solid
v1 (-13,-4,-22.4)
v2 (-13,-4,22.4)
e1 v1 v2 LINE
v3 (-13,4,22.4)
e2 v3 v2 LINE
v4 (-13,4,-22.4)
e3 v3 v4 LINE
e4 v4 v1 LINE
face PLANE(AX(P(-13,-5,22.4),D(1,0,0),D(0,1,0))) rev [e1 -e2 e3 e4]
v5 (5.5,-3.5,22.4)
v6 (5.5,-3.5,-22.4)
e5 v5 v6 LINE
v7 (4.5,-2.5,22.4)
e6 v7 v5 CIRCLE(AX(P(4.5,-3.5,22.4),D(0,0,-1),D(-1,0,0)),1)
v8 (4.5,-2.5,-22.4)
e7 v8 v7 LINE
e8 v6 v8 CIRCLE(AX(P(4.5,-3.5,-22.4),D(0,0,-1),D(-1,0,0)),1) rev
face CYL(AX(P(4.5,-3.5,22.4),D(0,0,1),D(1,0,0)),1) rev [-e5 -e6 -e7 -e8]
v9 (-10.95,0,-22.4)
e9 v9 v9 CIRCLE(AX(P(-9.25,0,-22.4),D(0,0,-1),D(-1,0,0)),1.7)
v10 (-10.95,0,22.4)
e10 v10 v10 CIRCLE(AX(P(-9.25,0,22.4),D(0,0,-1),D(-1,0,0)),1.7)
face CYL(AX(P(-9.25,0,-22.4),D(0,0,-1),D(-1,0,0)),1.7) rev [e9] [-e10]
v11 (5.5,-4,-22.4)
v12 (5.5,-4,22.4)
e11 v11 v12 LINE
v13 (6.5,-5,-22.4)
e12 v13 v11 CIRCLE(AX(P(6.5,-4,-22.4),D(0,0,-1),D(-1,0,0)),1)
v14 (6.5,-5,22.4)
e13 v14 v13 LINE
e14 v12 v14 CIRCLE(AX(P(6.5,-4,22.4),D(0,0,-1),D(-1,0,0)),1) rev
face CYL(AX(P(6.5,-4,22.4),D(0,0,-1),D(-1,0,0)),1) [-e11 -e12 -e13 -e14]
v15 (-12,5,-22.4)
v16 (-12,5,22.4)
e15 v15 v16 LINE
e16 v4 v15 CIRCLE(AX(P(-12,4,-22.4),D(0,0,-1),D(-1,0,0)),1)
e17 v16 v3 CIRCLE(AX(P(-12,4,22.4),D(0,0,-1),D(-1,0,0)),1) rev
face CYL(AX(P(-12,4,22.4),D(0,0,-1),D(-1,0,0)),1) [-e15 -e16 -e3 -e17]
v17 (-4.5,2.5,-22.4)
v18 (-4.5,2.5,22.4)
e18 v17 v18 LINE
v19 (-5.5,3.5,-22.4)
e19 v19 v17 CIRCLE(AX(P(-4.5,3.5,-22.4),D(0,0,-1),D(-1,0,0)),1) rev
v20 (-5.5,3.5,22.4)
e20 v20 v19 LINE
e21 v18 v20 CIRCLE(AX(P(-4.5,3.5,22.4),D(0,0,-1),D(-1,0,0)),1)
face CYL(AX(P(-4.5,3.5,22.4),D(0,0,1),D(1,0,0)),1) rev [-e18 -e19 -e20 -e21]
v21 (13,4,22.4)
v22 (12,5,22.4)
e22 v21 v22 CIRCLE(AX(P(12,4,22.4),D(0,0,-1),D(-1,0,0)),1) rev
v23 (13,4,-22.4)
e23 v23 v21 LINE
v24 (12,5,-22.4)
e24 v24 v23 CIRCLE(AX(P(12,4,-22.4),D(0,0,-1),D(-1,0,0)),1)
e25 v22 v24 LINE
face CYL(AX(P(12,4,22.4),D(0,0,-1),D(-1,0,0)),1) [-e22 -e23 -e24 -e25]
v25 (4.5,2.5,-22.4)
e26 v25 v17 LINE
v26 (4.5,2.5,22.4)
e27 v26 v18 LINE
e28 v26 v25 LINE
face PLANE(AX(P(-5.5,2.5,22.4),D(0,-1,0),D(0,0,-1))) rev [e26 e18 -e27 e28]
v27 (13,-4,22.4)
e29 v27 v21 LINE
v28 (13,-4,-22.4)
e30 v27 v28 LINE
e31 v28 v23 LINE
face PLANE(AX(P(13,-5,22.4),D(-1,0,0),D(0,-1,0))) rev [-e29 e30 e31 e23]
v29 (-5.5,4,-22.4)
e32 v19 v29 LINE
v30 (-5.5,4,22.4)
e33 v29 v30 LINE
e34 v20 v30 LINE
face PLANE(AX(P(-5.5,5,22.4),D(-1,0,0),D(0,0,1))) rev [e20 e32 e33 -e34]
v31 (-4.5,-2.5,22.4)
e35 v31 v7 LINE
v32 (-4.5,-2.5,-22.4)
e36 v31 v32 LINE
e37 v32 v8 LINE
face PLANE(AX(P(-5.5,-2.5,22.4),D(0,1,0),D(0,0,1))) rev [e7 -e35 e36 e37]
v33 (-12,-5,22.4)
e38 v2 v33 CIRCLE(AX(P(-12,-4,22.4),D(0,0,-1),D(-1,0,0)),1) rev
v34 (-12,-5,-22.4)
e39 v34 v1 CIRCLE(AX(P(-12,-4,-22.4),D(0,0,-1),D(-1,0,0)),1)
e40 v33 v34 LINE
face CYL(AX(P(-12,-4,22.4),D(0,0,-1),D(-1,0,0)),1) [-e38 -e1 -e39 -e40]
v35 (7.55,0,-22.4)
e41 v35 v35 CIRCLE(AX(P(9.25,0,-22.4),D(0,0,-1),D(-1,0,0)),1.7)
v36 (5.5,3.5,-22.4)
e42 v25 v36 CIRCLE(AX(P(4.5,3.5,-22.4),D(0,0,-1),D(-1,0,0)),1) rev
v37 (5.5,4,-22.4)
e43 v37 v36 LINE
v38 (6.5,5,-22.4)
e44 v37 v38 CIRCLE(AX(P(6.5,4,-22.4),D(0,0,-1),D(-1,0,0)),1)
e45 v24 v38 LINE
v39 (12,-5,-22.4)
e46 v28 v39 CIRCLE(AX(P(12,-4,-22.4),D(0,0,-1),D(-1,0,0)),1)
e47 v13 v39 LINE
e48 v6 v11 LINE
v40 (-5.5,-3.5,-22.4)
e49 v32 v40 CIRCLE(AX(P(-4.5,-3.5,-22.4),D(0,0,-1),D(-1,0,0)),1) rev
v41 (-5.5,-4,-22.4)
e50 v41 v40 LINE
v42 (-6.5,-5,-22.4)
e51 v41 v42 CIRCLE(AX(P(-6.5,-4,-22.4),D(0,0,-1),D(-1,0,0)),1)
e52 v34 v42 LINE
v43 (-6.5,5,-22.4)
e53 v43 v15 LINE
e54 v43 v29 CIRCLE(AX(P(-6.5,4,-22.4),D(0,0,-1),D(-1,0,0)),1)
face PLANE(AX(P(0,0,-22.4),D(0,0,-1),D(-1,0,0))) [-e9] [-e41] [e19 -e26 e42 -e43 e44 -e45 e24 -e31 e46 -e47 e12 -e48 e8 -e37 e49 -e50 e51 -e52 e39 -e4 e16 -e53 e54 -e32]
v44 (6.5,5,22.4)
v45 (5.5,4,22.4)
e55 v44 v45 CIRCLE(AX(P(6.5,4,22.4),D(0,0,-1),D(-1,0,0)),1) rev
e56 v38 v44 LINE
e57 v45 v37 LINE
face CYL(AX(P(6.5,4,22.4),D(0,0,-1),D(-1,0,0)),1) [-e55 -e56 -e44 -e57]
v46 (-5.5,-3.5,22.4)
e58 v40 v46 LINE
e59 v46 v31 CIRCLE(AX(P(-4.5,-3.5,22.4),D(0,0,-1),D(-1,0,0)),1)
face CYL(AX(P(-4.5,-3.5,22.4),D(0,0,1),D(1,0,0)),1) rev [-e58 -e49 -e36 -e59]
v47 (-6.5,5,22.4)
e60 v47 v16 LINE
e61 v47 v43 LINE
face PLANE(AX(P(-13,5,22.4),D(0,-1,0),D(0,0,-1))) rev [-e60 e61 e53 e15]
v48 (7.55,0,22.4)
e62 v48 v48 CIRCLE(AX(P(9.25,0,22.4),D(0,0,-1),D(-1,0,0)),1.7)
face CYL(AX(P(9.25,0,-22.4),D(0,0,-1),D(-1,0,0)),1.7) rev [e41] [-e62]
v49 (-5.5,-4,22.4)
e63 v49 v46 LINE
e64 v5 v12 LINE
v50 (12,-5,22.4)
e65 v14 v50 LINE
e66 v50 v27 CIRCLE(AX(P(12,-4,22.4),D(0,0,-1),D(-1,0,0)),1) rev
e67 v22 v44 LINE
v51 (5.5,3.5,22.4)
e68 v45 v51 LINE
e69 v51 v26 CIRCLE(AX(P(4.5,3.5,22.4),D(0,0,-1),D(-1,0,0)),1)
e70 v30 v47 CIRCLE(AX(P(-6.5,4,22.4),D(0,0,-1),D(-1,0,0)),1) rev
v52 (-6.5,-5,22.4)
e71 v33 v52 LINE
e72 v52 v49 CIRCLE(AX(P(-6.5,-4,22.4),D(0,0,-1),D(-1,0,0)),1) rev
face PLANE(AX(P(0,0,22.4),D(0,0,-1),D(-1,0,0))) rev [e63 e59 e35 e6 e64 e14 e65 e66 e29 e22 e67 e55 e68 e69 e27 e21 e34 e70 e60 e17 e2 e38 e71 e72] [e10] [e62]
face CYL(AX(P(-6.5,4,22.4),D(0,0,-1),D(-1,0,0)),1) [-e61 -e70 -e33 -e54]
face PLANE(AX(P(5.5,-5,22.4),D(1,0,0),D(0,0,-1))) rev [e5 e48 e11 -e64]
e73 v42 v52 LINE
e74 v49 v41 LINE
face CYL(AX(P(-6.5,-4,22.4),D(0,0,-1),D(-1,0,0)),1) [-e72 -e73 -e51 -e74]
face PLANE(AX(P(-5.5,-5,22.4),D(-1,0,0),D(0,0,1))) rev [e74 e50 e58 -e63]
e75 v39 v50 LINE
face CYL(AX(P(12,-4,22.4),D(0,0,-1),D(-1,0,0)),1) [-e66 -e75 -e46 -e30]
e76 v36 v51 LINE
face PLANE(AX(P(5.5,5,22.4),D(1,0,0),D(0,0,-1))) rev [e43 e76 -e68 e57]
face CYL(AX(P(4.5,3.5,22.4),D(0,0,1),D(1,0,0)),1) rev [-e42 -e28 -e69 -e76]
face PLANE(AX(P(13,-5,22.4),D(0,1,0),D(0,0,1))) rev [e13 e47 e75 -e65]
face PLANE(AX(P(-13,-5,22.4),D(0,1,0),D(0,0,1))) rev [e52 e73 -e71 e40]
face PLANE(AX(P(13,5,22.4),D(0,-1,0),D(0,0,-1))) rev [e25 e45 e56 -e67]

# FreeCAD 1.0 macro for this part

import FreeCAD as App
import Part
import Sketcher
Q = App.Units.Quantity


def edges_at(feature, points):
    """Names of the edges that pass closest to the given points."""
    edges = feature.Shape.Edges
    near = lambda p: min(range(len(edges)), key=lambda i: edges[i].distToShape(Part.Vertex(*p))[0])
    return sorted({f"Edge{near(p) + 1}" for p in points})


def add_polygon(sketch, points):
    """Adds a closed chain of lines whose ends are joined by coincident constraints."""
    first, n = sketch.GeometryCount, len(points)
    for a, b in zip(points, points[1:] + points[:1]):
        sketch.addGeometry(Part.LineSegment(App.Vector(*a, 0), App.Vector(*b, 0)), False)
    for i in range(n):
        sketch.addConstraint(Sketcher.Constraint("Coincident", first + i, 2, first + (i + 1) % n, 1))

doc = App.newDocument("Part")
body = doc.addObject("PartDesign::Body", "Body")

# Sketch on XY plane
sketch1 = body.newObject("Sketcher::SketchObject", "Sketch")
sketch1.AttachmentSupport = (doc.getObject("XY_Plane"), [""])
sketch1.MapMode = "FlatFace"
add_polygon(sketch1, [(-13, 5), (-13, -5), (-5.5, -5), (-5.5, -2.5), (5.5, -2.5), (5.5, -5), (13, -5), (13, 5), (5.5, 5), (5.5, 2.5), (-5.5, 2.5), (-5.5, 5)])  # lines 0-11
sketch1.addConstraint([
    Sketcher.Constraint("Vertical", 0),
    Sketcher.Constraint("Horizontal", 1),
    Sketcher.Constraint("Vertical", 2),
    Sketcher.Constraint("Horizontal", 3),
    Sketcher.Constraint("Vertical", 4),
    Sketcher.Constraint("Horizontal", 5),
    Sketcher.Constraint("Vertical", 6),
    Sketcher.Constraint("Horizontal", 7),
    Sketcher.Constraint("Vertical", 8),
    Sketcher.Constraint("Horizontal", 9),
    Sketcher.Constraint("Vertical", 10),
    Sketcher.Constraint("Horizontal", 11),
    Sketcher.Constraint("Symmetric", 0, 2, 6, 2, -1, 1),
    Sketcher.Constraint("Symmetric", 2, 2, 8, 2, -1, 1),
    Sketcher.Constraint("Symmetric", 4, 2, 10, 2, -1, 1),
    Sketcher.Constraint("Symmetric", 1, 2, 4, 2, -2),
    Sketcher.Constraint("DistanceX", 3, 1, 3, 2, Q("11 mm")),
    Sketcher.Constraint("DistanceY", 0, 2, 0, 1, Q("10 mm")),
    Sketcher.Constraint("DistanceX", 1, 1, 1, 2, Q("7.5 mm")),
    Sketcher.Constraint("DistanceY", 2, 1, 2, 2, Q("2.5 mm")),
])
pad1 = body.newObject("PartDesign::Pad", "Pad")
pad1.Profile = sketch1
pad1.Length = 44.8
pad1.Midplane = True
doc.recompute()

fillet = body.newObject("PartDesign::Fillet", "Fillet")
fillet.Base = (pad1, edges_at(pad1, [
    (-5.5, -5, 0),
    (-13, -5, 0),
    (-13, 5, 0),
    (-5.5, 5, 0),
    (-5.5, 2.5, 0),
    (5.5, 2.5, 0),
    (5.5, 5, 0),
    (13, 5, 0),
    (13, -5, 0),
    (5.5, -5, 0),
    (5.5, -2.5, 0),
    (-5.5, -2.5, 0),
]))
fillet.Radius = 1

# Sketch on XY plane
sketch2 = body.newObject("Sketcher::SketchObject", "Sketch001")
sketch2.AttachmentSupport = (doc.getObject("XY_Plane"), [""])
sketch2.MapMode = "FlatFace"
sketch2.AttachmentOffset = App.Placement(App.Vector(0, 0, -22.4), App.Rotation())
sketch2.addGeometry([
    Part.Circle(App.Vector(9.2, 0, 0), App.Vector(0, 0, 1), 1.7),
    Part.Circle(App.Vector(-9.2, 0, 0), App.Vector(0, 0, 1), 1.7),
], False)
sketch2.addConstraint([
    Sketcher.Constraint("Equal", 0, 1),
    Sketcher.Constraint("Symmetric", 0, 3, 1, 3, -1, 1),
    Sketcher.Constraint("PointOnObject", 0, 3, -1),
    Sketcher.Constraint("Diameter", 0, Q("3.4 mm")),
    Sketcher.Constraint("DistanceX", 1, 3, 0, 3, Q("18.5 mm")),
])
doc.recompute()
hole = body.newObject("PartDesign::Hole", "Hole")
hole.Profile = sketch2
hole.ThreadType = "None"
hole.Diameter = 3.4
hole.DepthType = "ThroughAll"
hole.Reversed = True

doc.recompute()
